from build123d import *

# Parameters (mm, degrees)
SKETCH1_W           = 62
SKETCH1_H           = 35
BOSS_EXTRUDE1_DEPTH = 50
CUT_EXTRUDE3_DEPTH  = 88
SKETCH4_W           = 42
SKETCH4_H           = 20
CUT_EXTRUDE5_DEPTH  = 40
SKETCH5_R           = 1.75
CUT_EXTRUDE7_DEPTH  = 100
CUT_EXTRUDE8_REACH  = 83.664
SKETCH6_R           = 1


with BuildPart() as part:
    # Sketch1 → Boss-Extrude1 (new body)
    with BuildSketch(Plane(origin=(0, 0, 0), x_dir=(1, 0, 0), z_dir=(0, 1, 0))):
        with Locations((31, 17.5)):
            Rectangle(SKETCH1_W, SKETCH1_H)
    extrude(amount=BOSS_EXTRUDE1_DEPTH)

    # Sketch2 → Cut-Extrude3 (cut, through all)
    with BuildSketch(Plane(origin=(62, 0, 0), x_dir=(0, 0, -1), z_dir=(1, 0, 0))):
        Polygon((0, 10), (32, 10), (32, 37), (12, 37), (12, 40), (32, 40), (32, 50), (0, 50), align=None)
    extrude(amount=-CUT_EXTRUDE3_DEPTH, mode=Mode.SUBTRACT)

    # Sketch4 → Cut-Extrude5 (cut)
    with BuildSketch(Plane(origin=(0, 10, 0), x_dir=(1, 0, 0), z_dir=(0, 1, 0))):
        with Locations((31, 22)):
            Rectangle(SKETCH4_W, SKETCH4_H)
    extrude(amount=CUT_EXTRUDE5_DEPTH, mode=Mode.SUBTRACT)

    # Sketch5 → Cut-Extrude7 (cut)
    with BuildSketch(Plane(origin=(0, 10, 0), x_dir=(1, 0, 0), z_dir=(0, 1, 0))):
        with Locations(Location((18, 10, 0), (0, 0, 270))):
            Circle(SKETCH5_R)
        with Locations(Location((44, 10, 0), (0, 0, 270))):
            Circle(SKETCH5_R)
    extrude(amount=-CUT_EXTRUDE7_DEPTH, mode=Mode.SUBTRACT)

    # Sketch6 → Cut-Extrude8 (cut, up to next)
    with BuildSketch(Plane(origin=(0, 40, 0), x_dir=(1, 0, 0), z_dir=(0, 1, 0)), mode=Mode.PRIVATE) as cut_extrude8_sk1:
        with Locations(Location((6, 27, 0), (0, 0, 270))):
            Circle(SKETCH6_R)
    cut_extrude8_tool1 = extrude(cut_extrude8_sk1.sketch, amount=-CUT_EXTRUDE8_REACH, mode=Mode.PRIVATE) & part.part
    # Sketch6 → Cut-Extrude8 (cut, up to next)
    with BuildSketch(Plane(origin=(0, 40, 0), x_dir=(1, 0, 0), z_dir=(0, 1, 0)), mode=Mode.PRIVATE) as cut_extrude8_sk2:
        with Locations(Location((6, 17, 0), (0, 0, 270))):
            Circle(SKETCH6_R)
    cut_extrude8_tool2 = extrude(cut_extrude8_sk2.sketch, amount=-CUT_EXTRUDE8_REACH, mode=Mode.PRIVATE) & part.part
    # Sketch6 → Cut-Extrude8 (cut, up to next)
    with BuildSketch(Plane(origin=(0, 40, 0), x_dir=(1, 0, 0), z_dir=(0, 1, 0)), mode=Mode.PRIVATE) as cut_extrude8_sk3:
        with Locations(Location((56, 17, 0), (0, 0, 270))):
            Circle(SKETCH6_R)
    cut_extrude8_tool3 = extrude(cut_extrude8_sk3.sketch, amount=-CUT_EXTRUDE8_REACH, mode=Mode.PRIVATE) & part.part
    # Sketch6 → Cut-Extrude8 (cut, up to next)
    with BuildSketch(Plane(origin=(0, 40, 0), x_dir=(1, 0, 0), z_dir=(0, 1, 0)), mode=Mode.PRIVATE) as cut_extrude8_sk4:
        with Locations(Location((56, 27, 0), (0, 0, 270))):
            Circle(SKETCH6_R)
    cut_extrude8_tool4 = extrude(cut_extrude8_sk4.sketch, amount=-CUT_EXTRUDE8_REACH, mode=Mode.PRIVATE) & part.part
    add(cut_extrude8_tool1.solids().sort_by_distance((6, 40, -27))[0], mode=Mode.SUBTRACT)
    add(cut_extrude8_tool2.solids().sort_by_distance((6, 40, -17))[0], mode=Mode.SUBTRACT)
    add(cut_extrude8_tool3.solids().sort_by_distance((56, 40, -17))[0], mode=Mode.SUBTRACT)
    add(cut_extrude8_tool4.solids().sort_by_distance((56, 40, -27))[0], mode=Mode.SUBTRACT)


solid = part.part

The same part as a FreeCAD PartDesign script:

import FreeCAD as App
import Part
import Sketcher

V = App.Vector


def add_polygon(sketch, points):
    """Adds a closed chain of lines whose ends are joined by coincident constraints."""
    first, n = sketch.GeometryCount, len(points)
    for a, b in zip(points, points[1:] + points[:1]):
        sketch.addGeometry(Part.LineSegment(App.Vector(*a, 0), App.Vector(*b, 0)), False)
    for i in range(n):
        sketch.addConstraint(Sketcher.Constraint("Coincident", first + i, 2, first + (i + 1) % n, 1))

doc = App.newDocument("Part")
body = doc.addObject("PartDesign::Body", "Body")

sketch1 = body.newObject("Sketcher::SketchObject", "Sketch")
sketch1.AttachmentSupport = (doc.getObject("XZ_Plane"), [""])
sketch1.MapMode = "FlatFace"
add_polygon(sketch1, [(0, -35), (0, 0), (62, 0), (62, -35)])
sketch1.addConstraint([
    Sketcher.Constraint("Vertical", 0),
    Sketcher.Constraint("Horizontal", 1),
    Sketcher.Constraint("Vertical", 2),
    Sketcher.Constraint("Horizontal", 3),
    Sketcher.Constraint("Coincident", 0, 2, -1, 1),
    Sketcher.Constraint("DistanceX", 1, 1, 1, 2, 62.0),
    Sketcher.Constraint("DistanceY", 0, 1, 0, 2, 35.0),
])
pad1 = body.newObject("PartDesign::Pad", "Pad")
pad1.Profile = sketch1
pad1.Length = 50
pad1.Reversed = True

sketch2 = body.newObject("Sketcher::SketchObject", "Sketch001")
sketch2.AttachmentSupport = (doc.getObject("YZ_Plane"), [""])
sketch2.MapMode = "FlatFace"
sketch2.AttachmentOffset = App.Placement(V(0, 0, 62), App.Rotation())
add_polygon(sketch2, [(10, 0), (10, -32), (37, -32), (37, -12), (40, -12), (40, -32), (50, -32), (50, 0)])
sketch2.addConstraint([
    Sketcher.Constraint("Vertical", 0),
    Sketcher.Constraint("Horizontal", 1),
    Sketcher.Constraint("Vertical", 2),
    Sketcher.Constraint("Horizontal", 3),
    Sketcher.Constraint("Vertical", 4),
    Sketcher.Constraint("Horizontal", 5),
    Sketcher.Constraint("Vertical", 6),
    Sketcher.Constraint("Horizontal", 7),
    Sketcher.Constraint("PointOnObject", 6, 2, -1),
    Sketcher.Constraint("Horizontal", 1, 2, 4, 2),
    Sketcher.Constraint("DistanceX", 1, 1, 1, 2, 27.0),
    Sketcher.Constraint("DistanceX", 3, 1, 3, 2, 3.0),
    Sketcher.Constraint("DistanceX", 5, 1, 5, 2, 10.0),
    Sketcher.Constraint("DistanceY", 0, 2, 0, 1, 32.0),
    Sketcher.Constraint("DistanceY", 2, 1, 2, 2, 20.0),
    Sketcher.Constraint("DistanceX", -1, 1, 0, 2, 10.0),
])
pocket1 = body.newObject("PartDesign::Pocket", "Pocket")
pocket1.Profile = sketch2
pocket1.Type = "ThroughAll"

sketch3 = body.newObject("Sketcher::SketchObject", "Sketch002")
sketch3.AttachmentSupport = (doc.getObject("XZ_Plane"), [""])
sketch3.MapMode = "FlatFace"
sketch3.AttachmentOffset = App.Placement(V(0, 0, -10), App.Rotation())
add_polygon(sketch3, [(10, -32), (10, -12), (52, -12), (52, -32)])
sketch3.addConstraint([
    Sketcher.Constraint("Vertical", 0),
    Sketcher.Constraint("Horizontal", 1),
    Sketcher.Constraint("Vertical", 2),
    Sketcher.Constraint("Horizontal", 3),
    Sketcher.Constraint("DistanceX", 1, 1, 1, 2, 42.0),
    Sketcher.Constraint("DistanceY", 0, 1, 0, 2, 20.0),
    Sketcher.Constraint("DistanceX", -1, 1, 0, 2, 10.0),
    Sketcher.Constraint("DistanceY", 0, 2, -1, 1, 12.0),
])
pocket2 = body.newObject("PartDesign::Pocket", "Pocket001")
pocket2.Profile = sketch3
pocket2.Length = 40

sketch4 = body.newObject("Sketcher::SketchObject", "Sketch003")
sketch4.AttachmentSupport = (doc.getObject("XZ_Plane"), [""])
sketch4.MapMode = "FlatFace"
sketch4.AttachmentOffset = App.Placement(V(0, 0, -10), App.Rotation())
sketch4.addGeometry([
    Part.Circle(V(18, -10, 0), V(0, 0, 1), 1.8),
    Part.Circle(V(44, -10, 0), V(0, 0, 1), 1.8),
], False)
sketch4.addConstraint([
    Sketcher.Constraint("Equal", 0, 1),
    Sketcher.Constraint("Horizontal", 0, 3, 1, 3),
    Sketcher.Constraint("Diameter", 0, 3.5),
    Sketcher.Constraint("DistanceX", -1, 1, 0, 3, 18.0),
    Sketcher.Constraint("DistanceY", 0, 3, -1, 1, 10.0),
    Sketcher.Constraint("DistanceX", -1, 1, 1, 3, 44.0),
])
pocket3 = body.newObject("PartDesign::Pocket", "Pocket002")
pocket3.Profile = sketch4
pocket3.Length = 100
pocket3.Reversed = True

sketch5 = body.newObject("Sketcher::SketchObject", "Sketch004")
sketch5.AttachmentSupport = (doc.getObject("XZ_Plane"), [""])
sketch5.MapMode = "FlatFace"
sketch5.AttachmentOffset = App.Placement(V(0, 0, -40), App.Rotation())
sketch5.addGeometry(Part.Circle(V(6, -27, 0), V(0, 0, 1), 1), False)
sketch5.addConstraint([
    Sketcher.Constraint("Diameter", 0, 2.0),
    Sketcher.Constraint("DistanceX", -1, 1, 0, 3, 6.0),
    Sketcher.Constraint("DistanceY", 0, 3, -1, 1, 27.0),
])
pocket4 = body.newObject("PartDesign::Pocket", "Pocket003")
pocket4.Profile = sketch5
pocket4.Type = "UpToFirst"
pocket4.Reversed = True

sketch6 = body.newObject("Sketcher::SketchObject", "Sketch005")
sketch6.AttachmentSupport = (doc.getObject("XZ_Plane"), [""])
sketch6.MapMode = "FlatFace"
sketch6.AttachmentOffset = App.Placement(V(0, 0, -40), App.Rotation())
sketch6.addGeometry(Part.Circle(V(6, -17, 0), V(0, 0, 1), 1), False)
sketch6.addConstraint([
    Sketcher.Constraint("Diameter", 0, 2.0),
    Sketcher.Constraint("DistanceX", -1, 1, 0, 3, 6.0),
    Sketcher.Constraint("DistanceY", 0, 3, -1, 1, 17.0),
])
pocket5 = body.newObject("PartDesign::Pocket", "Pocket004")
pocket5.Profile = sketch6
pocket5.Type = "UpToFirst"
pocket5.Reversed = True

sketch7 = body.newObject("Sketcher::SketchObject", "Sketch006")
sketch7.AttachmentSupport = (doc.getObject("XZ_Plane"), [""])
sketch7.MapMode = "FlatFace"
sketch7.AttachmentOffset = App.Placement(V(0, 0, -40), App.Rotation())
sketch7.addGeometry(Part.Circle(V(56, -17, 0), V(0, 0, 1), 1), False)
sketch7.addConstraint([
    Sketcher.Constraint("Diameter", 0, 2.0),
    Sketcher.Constraint("DistanceX", -1, 1, 0, 3, 56.0),
    Sketcher.Constraint("DistanceY", 0, 3, -1, 1, 17.0),
])
pocket6 = body.newObject("PartDesign::Pocket", "Pocket005")
pocket6.Profile = sketch7
pocket6.Type = "UpToFirst"
pocket6.Reversed = True

sketch8 = body.newObject("Sketcher::SketchObject", "Sketch007")
sketch8.AttachmentSupport = (doc.getObject("XZ_Plane"), [""])
sketch8.MapMode = "FlatFace"
sketch8.AttachmentOffset = App.Placement(V(0, 0, -40), App.Rotation())
sketch8.addGeometry(Part.Circle(V(56, -27, 0), V(0, 0, 1), 1), False)
sketch8.addConstraint([
    Sketcher.Constraint("Diameter", 0, 2.0),
    Sketcher.Constraint("DistanceX", -1, 1, 0, 3, 56.0),
    Sketcher.Constraint("DistanceY", 0, 3, -1, 1, 27.0),
])
pocket7 = body.newObject("PartDesign::Pocket", "Pocket006")
pocket7.Profile = sketch8
pocket7.Type = "UpToFirst"
pocket7.Reversed = True

doc.recompute()
